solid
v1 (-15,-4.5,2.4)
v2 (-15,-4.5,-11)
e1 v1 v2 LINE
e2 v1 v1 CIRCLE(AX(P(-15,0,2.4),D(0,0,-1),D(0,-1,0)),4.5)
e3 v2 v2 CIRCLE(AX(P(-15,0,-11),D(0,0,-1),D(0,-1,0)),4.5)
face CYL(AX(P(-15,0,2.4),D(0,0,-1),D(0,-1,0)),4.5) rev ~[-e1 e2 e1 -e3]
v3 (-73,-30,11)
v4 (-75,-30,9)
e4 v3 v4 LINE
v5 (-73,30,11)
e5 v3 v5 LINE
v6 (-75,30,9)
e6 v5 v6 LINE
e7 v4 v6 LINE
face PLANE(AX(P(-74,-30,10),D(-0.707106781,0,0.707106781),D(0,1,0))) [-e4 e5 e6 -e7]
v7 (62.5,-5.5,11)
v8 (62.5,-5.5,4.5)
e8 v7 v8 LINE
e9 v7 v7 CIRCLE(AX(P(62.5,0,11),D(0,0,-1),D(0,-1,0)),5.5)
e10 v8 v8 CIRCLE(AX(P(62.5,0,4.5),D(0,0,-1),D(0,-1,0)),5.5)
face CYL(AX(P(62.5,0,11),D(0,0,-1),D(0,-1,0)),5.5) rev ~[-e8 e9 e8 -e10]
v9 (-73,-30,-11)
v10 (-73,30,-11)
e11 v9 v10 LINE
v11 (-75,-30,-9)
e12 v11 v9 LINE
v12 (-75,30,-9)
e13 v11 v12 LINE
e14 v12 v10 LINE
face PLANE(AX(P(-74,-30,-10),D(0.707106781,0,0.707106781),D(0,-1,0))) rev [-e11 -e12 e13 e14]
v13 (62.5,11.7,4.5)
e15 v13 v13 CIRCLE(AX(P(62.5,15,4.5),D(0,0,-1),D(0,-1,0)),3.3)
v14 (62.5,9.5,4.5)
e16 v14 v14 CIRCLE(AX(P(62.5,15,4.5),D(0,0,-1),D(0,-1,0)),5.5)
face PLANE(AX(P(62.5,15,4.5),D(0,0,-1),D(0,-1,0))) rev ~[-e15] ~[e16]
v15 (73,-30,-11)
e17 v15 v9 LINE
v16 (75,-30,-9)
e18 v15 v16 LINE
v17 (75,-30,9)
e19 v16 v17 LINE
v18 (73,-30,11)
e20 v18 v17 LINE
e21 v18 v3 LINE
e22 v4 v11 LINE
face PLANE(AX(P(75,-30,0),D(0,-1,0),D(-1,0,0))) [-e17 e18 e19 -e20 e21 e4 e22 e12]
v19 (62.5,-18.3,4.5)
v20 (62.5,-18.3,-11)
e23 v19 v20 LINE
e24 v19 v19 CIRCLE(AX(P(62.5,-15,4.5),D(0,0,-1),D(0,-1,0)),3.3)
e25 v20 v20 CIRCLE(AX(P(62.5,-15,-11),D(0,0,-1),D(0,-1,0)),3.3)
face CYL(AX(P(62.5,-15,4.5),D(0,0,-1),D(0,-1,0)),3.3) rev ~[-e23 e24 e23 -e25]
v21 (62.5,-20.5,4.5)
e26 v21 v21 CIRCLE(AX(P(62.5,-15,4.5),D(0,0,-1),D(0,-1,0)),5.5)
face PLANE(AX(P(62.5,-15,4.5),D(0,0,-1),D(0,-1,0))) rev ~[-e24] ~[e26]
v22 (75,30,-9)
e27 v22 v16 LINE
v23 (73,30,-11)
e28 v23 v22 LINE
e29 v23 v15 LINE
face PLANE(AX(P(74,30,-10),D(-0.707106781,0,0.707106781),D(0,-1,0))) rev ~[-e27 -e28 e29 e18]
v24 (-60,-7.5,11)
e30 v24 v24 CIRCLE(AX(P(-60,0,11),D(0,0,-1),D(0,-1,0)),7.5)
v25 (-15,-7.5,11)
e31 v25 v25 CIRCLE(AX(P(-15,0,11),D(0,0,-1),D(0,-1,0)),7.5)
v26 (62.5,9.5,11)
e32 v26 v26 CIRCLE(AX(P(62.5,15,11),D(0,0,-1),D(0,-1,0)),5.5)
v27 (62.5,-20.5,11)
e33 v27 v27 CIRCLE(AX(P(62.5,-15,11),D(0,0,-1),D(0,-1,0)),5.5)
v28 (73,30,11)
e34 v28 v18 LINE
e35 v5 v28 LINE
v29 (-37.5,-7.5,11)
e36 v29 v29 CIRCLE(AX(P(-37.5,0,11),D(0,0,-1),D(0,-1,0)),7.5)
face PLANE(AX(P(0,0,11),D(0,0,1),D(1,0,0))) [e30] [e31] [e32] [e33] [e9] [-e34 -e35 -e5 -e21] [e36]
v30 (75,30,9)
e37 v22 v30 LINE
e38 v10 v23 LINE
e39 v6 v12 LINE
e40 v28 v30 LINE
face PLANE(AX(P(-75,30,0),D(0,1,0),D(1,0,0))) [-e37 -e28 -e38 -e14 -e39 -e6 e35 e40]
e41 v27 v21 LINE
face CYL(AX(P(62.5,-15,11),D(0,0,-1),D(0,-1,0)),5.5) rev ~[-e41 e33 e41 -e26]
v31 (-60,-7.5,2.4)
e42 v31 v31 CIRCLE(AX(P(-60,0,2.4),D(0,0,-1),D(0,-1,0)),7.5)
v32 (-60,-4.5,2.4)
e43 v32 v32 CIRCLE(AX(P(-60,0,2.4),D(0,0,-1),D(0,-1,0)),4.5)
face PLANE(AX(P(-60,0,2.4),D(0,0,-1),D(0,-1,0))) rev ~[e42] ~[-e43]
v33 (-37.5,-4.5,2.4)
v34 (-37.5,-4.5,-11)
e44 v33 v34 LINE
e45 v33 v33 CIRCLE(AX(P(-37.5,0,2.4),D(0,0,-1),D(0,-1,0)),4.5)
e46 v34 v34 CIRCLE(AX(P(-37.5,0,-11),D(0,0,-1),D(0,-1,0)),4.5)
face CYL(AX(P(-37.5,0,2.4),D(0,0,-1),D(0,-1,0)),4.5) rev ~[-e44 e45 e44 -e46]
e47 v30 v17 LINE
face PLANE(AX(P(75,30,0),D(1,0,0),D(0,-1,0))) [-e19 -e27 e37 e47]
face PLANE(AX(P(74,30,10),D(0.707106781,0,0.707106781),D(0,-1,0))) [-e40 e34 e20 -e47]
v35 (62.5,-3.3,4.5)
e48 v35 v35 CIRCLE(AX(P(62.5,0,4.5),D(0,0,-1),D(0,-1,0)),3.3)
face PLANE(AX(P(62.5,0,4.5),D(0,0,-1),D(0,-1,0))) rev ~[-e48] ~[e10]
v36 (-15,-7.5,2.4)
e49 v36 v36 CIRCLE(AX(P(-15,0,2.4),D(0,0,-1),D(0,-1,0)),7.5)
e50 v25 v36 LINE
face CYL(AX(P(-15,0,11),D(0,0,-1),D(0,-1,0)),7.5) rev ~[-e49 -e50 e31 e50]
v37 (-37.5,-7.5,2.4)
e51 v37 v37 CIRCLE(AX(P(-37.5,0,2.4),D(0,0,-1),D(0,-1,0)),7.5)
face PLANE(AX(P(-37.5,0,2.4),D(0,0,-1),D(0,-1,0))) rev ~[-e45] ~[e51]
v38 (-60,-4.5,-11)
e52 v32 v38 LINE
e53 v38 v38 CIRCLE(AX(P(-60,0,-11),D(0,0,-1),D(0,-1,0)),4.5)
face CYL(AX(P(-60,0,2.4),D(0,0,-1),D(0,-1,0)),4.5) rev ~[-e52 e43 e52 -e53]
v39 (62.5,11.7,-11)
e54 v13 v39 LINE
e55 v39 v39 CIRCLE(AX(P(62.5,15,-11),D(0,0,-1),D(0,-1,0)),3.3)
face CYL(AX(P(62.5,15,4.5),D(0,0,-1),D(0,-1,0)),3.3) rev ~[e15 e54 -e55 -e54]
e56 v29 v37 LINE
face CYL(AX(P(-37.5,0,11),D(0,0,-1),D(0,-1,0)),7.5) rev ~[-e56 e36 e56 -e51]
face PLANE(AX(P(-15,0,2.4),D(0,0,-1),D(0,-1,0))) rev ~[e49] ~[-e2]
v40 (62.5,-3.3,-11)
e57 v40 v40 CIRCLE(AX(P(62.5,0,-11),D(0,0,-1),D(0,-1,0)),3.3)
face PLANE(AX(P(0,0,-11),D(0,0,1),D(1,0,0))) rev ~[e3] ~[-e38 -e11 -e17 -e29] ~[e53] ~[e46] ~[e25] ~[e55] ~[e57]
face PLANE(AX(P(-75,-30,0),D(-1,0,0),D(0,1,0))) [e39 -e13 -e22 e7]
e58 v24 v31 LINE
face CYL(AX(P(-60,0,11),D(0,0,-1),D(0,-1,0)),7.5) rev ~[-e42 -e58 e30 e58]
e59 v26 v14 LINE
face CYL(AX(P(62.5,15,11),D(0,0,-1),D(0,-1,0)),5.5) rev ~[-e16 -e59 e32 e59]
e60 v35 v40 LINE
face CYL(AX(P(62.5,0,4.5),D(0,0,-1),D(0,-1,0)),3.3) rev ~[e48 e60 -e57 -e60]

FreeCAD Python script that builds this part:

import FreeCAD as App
import Part
import Sketcher
from FreeCAD import Vector
Q = App.Units.Quantity


def edges_at(feature, points):
    """Names of the edges that pass closest to the given points."""
    edges = feature.Shape.Edges
    near = lambda p: min(range(len(edges)), key=lambda i: edges[i].distToShape(Part.Vertex(*p))[0])
    return sorted({f"Edge{near(p) + 1}" for p in points})


def add_polygon(sketch, points):
    """Adds a closed chain of lines whose ends are joined by coincident constraints."""
    first, n = sketch.GeometryCount, len(points)
    for a, b in zip(points, points[1:] + points[:1]):
        sketch.addGeometry(Part.LineSegment(App.Vector(*a, 0), App.Vector(*b, 0)), False)
    for i in range(n):
        sketch.addConstraint(Sketcher.Constraint("Coincident", first + i, 2, first + (i + 1) % n, 1))

doc = App.newDocument("Part")
body = doc.addObject("PartDesign::Body", "Body")

# Sketch on XY plane
sketch1 = body.newObject("Sketcher::SketchObject", "Sketch")
sketch1.AttachmentSupport = (doc.getObject("XY_Plane"), [""])
sketch1.MapMode = "FlatFace"
add_polygon(sketch1, [(-75, -30), (75, -30), (75, 30), (-75, 30)])  # lines 0-3
sketch1.addConstraint(Sketcher.Constraint("Horizontal", 0))
sketch1.addConstraint(Sketcher.Constraint("Vertical", 1))
sketch1.addConstraint(Sketcher.Constraint("Horizontal", 2))
sketch1.addConstraint(Sketcher.Constraint("Vertical", 3))
sketch1.addConstraint(Sketcher.Constraint("Symmetric", 0, 2, 2, 2, -1, 1))
sketch1.addConstraint(Sketcher.Constraint("DistanceX", 0, 1, 0, 2, Q("150 mm")))
sketch1.addConstraint(Sketcher.Constraint("DistanceY", 1, 1, 1, 2, Q("60 mm")))
pad1 = body.newObject("PartDesign::Pad", "Pad")
pad1.Profile = sketch1
pad1.Length = 22
pad1.Midplane = True

# Sketch on XY plane
sketch2 = body.newObject("Sketcher::SketchObject", "Sketch001")
sketch2.AttachmentSupport = (doc.getObject("XY_Plane"), [""])
sketch2.MapMode = "FlatFace"
sketch2.AttachmentOffset = App.Placement(Vector(0, 0, 11), App.Rotation())
sketch2.addGeometry(Part.Circle(Vector(62.5, 0, 0), Vector(0, 0, 1), 3.3), False)
sketch2.addGeometry(Part.Circle(Vector(62.5, 15, 0), Vector(0, 0, 1), 3.3), False)
sketch2.addGeometry(Part.Circle(Vector(62.5, -15, 0), Vector(0, 0, 1), 3.3), False)
sketch2.addConstraint(Sketcher.Constraint("Equal", 0, 1))
sketch2.addConstraint(Sketcher.Constraint("Equal", 1, 2))
sketch2.addConstraint(Sketcher.Constraint("Symmetric", 1, 3, 2, 3, -1))
sketch2.addConstraint(Sketcher.Constraint("PointOnObject", 0, 3, -1))
sketch2.addConstraint(Sketcher.Constraint("Vertical", 0, 3, 1, 3))
sketch2.addConstraint(Sketcher.Constraint("Diameter", 0, Q("6.6 mm")))
sketch2.addConstraint(Sketcher.Constraint("DistanceY", -1, 1, 1, 3, Q("15 mm")))
sketch2.addConstraint(Sketcher.Constraint("DistanceX", -1, 1, 0, 3, Q("62.5 mm")))
doc.recompute()
hole = body.newObject("PartDesign::Hole", "Hole")
hole.Profile = sketch2
hole.ThreadType = "None"
hole.Diameter = 6.6
hole.DepthType = "ThroughAll"
hole.HoleCutType = "Counterbore"
hole.HoleCutDiameter = 11
hole.HoleCutDepth = 6.5

# Sketch on XY plane
sketch3 = body.newObject("Sketcher::SketchObject", "Sketch002")
sketch3.AttachmentSupport = (doc.getObject("XY_Plane"), [""])
sketch3.MapMode = "FlatFace"
sketch3.AttachmentOffset = App.Placement(Vector(0, 0, 11), App.Rotation())
sketch3.addGeometry(Part.Circle(Vector(-60, 0, 0), Vector(0, 0, 1), 4.5), False)
sketch3.addGeometry(Part.Circle(Vector(-37.5, 0, 0), Vector(0, 0, 1), 4.5), False)
sketch3.addGeometry(Part.Circle(Vector(-15, 0, 0), Vector(0, 0, 1), 4.5), False)
sketch3.addConstraint(Sketcher.Constraint("Equal", 0, 1))
sketch3.addConstraint(Sketcher.Constraint("Equal", 1, 2))
sketch3.addConstraint(Sketcher.Constraint("PointOnObject", 0, 3, -1))
sketch3.addConstraint(Sketcher.Constraint("PointOnObject", 1, 3, -1))
sketch3.addConstraint(Sketcher.Constraint("PointOnObject", 2, 3, -1))
sketch3.addConstraint(Sketcher.Constraint("Diameter", 0, Q("9 mm")))
sketch3.addConstraint(Sketcher.Constraint("DistanceX", 0, 3, -1, 1, Q("60 mm")))
sketch3.addConstraint(Sketcher.Constraint("DistanceX", 2, 3, -1, 1, Q("15 mm")))
sketch3.addConstraint(Sketcher.Constraint("DistanceX", 1, 3, -1, 1, Q("37.5 mm")))
doc.recompute()
hole2 = body.newObject("PartDesign::Hole", "Hole001")
hole2.Profile = sketch3
hole2.ThreadType = "None"
hole2.Diameter = 9
hole2.DepthType = "ThroughAll"
hole2.HoleCutType = "Counterbore"
hole2.HoleCutDiameter = 15
hole2.HoleCutDepth = 8.6
doc.recompute()

chamfer = body.newObject("PartDesign::Chamfer", "Chamfer")
chamfer.Base = (hole2, edges_at(hole2, [
    (75, 0, 11),
    (75, 0, -11),
    (-75, 0, 11),
    (-75, 0, -11),
]))
chamfer.Size = 2

doc.recompute()
